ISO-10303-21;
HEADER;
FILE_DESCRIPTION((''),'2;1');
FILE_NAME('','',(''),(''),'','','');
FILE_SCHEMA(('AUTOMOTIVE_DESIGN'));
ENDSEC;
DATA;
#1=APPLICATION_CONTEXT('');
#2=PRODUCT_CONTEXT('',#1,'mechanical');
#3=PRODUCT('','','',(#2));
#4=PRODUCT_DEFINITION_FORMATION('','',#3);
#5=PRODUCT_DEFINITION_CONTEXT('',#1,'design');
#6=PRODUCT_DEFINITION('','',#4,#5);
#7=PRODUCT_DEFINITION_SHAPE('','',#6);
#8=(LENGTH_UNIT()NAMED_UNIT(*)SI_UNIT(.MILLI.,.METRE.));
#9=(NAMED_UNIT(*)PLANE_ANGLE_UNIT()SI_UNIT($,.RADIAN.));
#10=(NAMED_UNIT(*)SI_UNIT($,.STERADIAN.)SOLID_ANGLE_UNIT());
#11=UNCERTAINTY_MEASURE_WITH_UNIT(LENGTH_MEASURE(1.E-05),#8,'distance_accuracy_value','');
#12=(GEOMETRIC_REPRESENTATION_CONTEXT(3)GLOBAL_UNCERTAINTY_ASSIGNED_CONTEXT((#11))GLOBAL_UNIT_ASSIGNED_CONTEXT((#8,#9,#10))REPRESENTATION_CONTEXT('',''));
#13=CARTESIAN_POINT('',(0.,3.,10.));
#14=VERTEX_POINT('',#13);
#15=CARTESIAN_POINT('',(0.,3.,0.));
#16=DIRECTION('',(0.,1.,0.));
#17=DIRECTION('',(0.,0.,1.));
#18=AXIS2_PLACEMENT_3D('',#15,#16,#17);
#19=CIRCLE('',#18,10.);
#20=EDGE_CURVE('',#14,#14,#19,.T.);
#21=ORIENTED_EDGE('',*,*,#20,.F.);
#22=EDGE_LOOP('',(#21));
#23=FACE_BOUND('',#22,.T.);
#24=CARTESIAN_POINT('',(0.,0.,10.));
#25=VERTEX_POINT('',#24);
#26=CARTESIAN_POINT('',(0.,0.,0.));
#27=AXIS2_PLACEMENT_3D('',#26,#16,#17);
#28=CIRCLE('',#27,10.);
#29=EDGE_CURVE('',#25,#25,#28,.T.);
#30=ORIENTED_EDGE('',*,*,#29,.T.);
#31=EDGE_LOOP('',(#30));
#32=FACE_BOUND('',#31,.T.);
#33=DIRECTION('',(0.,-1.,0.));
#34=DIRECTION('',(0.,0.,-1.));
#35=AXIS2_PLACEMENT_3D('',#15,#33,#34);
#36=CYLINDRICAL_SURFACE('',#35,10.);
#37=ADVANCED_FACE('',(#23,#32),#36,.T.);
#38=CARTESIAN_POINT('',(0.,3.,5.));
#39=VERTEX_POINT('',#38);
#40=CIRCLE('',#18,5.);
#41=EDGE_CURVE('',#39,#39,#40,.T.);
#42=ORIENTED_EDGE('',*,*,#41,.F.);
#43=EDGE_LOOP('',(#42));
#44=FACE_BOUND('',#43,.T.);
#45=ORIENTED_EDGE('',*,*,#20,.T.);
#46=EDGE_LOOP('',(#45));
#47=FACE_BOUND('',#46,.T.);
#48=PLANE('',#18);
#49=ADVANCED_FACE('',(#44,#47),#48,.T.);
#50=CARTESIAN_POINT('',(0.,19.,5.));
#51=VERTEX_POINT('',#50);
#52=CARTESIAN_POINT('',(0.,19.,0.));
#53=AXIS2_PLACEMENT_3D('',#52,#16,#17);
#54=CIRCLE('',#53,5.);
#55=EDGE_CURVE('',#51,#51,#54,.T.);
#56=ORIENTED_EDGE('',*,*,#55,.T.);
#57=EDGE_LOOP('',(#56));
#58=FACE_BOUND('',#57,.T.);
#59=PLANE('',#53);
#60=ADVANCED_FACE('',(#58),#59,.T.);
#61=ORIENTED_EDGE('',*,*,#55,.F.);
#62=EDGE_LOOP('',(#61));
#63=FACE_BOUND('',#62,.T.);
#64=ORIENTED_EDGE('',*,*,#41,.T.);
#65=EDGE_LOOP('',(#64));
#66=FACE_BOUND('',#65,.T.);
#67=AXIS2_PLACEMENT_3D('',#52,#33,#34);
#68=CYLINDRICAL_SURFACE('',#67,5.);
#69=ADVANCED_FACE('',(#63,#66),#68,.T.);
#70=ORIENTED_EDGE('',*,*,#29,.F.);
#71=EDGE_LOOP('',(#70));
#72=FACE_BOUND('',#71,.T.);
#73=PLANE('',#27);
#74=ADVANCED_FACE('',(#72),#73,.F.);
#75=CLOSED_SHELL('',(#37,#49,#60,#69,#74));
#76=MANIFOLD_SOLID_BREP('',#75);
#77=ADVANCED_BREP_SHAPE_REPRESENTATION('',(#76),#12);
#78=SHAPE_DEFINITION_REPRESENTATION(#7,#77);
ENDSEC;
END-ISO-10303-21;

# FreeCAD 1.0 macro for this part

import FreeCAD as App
import Part
import Sketcher

V = App.Vector
Q = App.Units.Quantity

doc = App.newDocument("Part")
body = doc.addObject("PartDesign::Body", "Body")

# Sketch on XZ plane
sketch1 = doc.addObject("Sketcher::SketchObject", "Sketch")
body.addObject(sketch1)
sketch1.AttachmentSupport = (doc.XZ_Plane, [""])
sketch1.MapMode = "FlatFace"
sketch1.addGeometry(Part.Circle(V(0, 0, 0), V(0, 0, 1), 10), False)
sketch1.addConstraint([
    Sketcher.Constraint("Coincident", 0, 3, -1, 1),
    Sketcher.Constraint("Diameter", 0, Q("20 mm")),
])
pad1 = doc.addObject("PartDesign::Pad", "Pad")
body.addObject(pad1)
pad1.Profile = sketch1
pad1.Length = 3
pad1.Reversed = True

# Sketch on XZ plane
sketch2 = doc.addObject("Sketcher::SketchObject", "Sketch001")
body.addObject(sketch2)
sketch2.AttachmentSupport = (doc.XZ_Plane, [""])
sketch2.MapMode = "FlatFace"
sketch2.AttachmentOffset = App.Placement(V(0, 0, -3), App.Rotation())
sketch2.addGeometry(Part.Circle(V(0, 0, 0), V(0, 0, 1), 5), False)
sketch2.addConstraint([
    Sketcher.Constraint("Coincident", 0, 3, -1, 1),
    Sketcher.Constraint("Diameter", 0, Q("10 mm")),
])
pad2 = doc.addObject("PartDesign::Pad", "Pad001")
body.addObject(pad2)
pad2.Profile = sketch2
pad2.Length = 16
pad2.Reversed = True

doc.recompute()
